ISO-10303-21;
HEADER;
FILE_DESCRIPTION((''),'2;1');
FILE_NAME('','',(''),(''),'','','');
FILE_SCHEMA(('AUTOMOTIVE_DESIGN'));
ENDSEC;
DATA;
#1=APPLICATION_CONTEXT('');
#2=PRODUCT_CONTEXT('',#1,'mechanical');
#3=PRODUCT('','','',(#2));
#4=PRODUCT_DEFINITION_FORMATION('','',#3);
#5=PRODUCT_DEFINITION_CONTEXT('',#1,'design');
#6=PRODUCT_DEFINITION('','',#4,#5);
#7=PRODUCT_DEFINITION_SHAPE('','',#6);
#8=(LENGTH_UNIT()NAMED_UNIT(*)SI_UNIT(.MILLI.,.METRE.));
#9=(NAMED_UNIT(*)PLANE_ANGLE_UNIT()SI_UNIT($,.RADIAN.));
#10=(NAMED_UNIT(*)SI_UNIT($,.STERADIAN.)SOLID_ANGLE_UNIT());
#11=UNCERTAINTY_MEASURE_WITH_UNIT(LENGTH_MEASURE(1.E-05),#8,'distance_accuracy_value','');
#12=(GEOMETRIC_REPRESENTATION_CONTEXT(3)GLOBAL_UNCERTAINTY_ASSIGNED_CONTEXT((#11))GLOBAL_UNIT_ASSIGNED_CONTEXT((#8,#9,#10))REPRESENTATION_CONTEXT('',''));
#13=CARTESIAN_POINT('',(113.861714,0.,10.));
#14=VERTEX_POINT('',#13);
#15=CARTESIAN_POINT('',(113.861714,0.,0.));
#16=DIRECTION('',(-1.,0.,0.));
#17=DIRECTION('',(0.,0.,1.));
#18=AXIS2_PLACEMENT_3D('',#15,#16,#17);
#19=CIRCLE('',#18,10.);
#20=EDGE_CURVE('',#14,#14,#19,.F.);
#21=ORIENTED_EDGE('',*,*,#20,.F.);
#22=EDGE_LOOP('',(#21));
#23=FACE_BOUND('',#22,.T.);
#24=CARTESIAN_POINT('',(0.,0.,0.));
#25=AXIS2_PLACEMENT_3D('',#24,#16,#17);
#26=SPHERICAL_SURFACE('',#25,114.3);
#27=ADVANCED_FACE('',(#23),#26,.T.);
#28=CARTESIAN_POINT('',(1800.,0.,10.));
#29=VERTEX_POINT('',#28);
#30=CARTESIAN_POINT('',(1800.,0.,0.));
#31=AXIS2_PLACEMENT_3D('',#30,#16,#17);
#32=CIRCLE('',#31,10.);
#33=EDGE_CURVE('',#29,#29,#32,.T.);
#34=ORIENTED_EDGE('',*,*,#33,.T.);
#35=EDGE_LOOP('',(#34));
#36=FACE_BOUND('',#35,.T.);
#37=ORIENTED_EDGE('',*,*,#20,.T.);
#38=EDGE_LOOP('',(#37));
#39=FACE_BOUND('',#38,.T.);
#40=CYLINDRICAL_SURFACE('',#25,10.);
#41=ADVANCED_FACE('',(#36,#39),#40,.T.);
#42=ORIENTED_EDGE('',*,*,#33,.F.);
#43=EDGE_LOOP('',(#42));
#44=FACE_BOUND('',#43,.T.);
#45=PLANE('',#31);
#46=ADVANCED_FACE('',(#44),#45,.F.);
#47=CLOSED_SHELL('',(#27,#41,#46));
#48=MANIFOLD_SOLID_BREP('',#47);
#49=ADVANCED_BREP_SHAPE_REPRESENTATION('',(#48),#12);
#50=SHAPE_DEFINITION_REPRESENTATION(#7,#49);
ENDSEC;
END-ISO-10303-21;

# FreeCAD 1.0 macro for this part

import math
import FreeCAD as App
import Part
import Sketcher
from FreeCAD import Vector

doc = App.newDocument("Part")
params = doc.addObject("Spreadsheet::Sheet", "Params")
for row, (alias, value) in enumerate([
    ("sketch1_radius", "114.3 mm"),
    ("revolution_angle", "360 deg"),
    ("sketch2_width", "1800 mm"),
    ("sketch2_height", "10 mm"),
    ("revolution2_angle", "360 deg"),
], start=1):
    params.set(f"A{row}", alias)
    params.set(f"B{row}", "=" + value)
    params.setAlias(f"B{row}", alias)

body = doc.addObject("PartDesign::Body", "Body")

# Sketch on XY plane
sketch1 = body.newObject("Sketcher::SketchObject", "Sketch")
sketch1.AttachmentSupport = (doc.getObject("XY_Plane"), [""])
sketch1.MapMode = "FlatFace"
sketch1.addGeometry(Part.LineSegment(Vector(0, -114.3, 0), Vector(0, 114.3, 0)), False)
sketch1.addGeometry(Part.ArcOfCircle(Part.Circle(Vector(0, 0, 0), Vector(0, 0, 1), 114.3), math.radians(90), math.radians(270)), False)
sketch1.addConstraint(Sketcher.Constraint("Coincident", 0, 1, 1, 2))
sketch1.addConstraint(Sketcher.Constraint("Coincident", 1, 1, 0, 2))
sketch1.addConstraint(Sketcher.Constraint("Vertical", 0))
sketch1.addConstraint(Sketcher.Constraint("Coincident", 1, 3, -1, 1))
sketch1.addConstraint(Sketcher.Constraint("PointOnObject", 0, 1, -2))
sketch1.addConstraint(Sketcher.Constraint("Radius", 1, 114.3))
sketch1.setExpression("Constraints[5]", "Params.sketch1_radius")
revolution = body.newObject("PartDesign::Revolution", "Revolution")
revolution.Profile = sketch1
revolution.ReferenceAxis = (sketch1, ["V_Axis"])
revolution.setExpression("Angle", "Params.revolution_angle")

# Sketch on XY plane
sketch2 = body.newObject("Sketcher::SketchObject", "Sketch001")
sketch2.AttachmentSupport = (doc.getObject("XY_Plane"), [""])
sketch2.MapMode = "FlatFace"
sketch2.addGeometry(Part.LineSegment(Vector(0, 10, 0), Vector(0, 0, 0)), False)
sketch2.addGeometry(Part.LineSegment(Vector(0, 0, 0), Vector(1800, 0, 0)), False)
sketch2.addGeometry(Part.LineSegment(Vector(1800, 0, 0), Vector(1800, 10, 0)), False)
sketch2.addGeometry(Part.LineSegment(Vector(1800, 10, 0), Vector(0, 10, 0)), False)
sketch2.addConstraint(Sketcher.Constraint("Coincident", 0, 2, 1, 1))
sketch2.addConstraint(Sketcher.Constraint("Coincident", 1, 2, 2, 1))
sketch2.addConstraint(Sketcher.Constraint("Coincident", 2, 2, 3, 1))
sketch2.addConstraint(Sketcher.Constraint("Coincident", 3, 2, 0, 1))
sketch2.addConstraint(Sketcher.Constraint("Vertical", 0))
sketch2.addConstraint(Sketcher.Constraint("Horizontal", 1))
sketch2.addConstraint(Sketcher.Constraint("Vertical", 2))
sketch2.addConstraint(Sketcher.Constraint("Horizontal", 3))
sketch2.addConstraint(Sketcher.Constraint("Coincident", 0, 2, -1, 1))
sketch2.addConstraint(Sketcher.Constraint("DistanceX", 1, 1, 1, 2, 1800.0))
sketch2.addConstraint(Sketcher.Constraint("DistanceY", 0, 2, 0, 1, 10.0))
sketch2.setExpression("Constraints[9]", "Params.sketch2_width")
sketch2.setExpression("Constraints[10]", "Params.sketch2_height")
revolution2 = body.newObject("PartDesign::Revolution", "Revolution001")
revolution2.Profile = sketch2
revolution2.ReferenceAxis = (sketch2, ["H_Axis"])
revolution2.setExpression("Angle", "Params.revolution2_angle")

doc.recompute()
